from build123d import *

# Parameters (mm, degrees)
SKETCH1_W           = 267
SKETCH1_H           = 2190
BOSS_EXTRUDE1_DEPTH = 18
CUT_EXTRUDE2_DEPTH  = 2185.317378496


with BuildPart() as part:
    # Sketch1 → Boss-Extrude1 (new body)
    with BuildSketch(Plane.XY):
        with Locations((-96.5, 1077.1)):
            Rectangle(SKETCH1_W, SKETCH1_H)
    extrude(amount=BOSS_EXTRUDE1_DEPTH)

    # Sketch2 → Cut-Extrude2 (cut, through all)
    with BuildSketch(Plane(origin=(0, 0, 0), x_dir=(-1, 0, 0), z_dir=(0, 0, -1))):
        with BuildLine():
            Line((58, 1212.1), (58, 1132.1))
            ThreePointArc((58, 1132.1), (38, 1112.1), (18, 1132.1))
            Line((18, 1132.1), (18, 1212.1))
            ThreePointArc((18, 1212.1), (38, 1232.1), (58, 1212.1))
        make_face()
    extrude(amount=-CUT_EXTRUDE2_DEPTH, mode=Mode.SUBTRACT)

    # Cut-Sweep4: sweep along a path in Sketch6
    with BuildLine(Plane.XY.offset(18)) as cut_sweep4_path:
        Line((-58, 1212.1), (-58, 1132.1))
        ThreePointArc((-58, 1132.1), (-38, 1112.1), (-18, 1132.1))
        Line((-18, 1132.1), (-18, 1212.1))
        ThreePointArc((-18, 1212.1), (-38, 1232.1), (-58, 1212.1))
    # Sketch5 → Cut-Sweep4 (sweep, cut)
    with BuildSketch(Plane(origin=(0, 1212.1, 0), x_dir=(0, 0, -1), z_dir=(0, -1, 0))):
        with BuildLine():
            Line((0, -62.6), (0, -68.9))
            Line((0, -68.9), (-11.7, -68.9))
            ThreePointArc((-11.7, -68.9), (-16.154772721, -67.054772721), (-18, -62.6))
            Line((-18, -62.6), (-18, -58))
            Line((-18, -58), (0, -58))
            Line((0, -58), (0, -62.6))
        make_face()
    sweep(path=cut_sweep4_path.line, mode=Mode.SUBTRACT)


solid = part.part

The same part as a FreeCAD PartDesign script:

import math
import FreeCAD as App
import Part
import Sketcher
from FreeCAD import Vector
Q = App.Units.Quantity

doc = App.newDocument("Part")
body = doc.addObject("PartDesign::Body", "Body")

# Sketch on XY plane
sketch1 = body.newObject("Sketcher::SketchObject", "Sketch")
sketch1.AttachmentSupport = (doc.getObject("XY_Plane"), [""])
sketch1.MapMode = "FlatFace"
sketch1.addGeometry(Part.LineSegment(Vector(-230, 2172, 0), Vector(-230, -18, 0)), False)
sketch1.addGeometry(Part.LineSegment(Vector(-230, -18, 0), Vector(37, -18, 0)), False)
sketch1.addGeometry(Part.LineSegment(Vector(37, -18, 0), Vector(37, 2172, 0)), False)
sketch1.addGeometry(Part.LineSegment(Vector(37, 2172, 0), Vector(-230, 2172, 0)), False)
sketch1.addConstraint(Sketcher.Constraint("Coincident", 0, 2, 1, 1))
sketch1.addConstraint(Sketcher.Constraint("Coincident", 1, 2, 2, 1))
sketch1.addConstraint(Sketcher.Constraint("Coincident", 2, 2, 3, 1))
sketch1.addConstraint(Sketcher.Constraint("Coincident", 3, 2, 0, 1))
sketch1.addConstraint(Sketcher.Constraint("Vertical", 0))
sketch1.addConstraint(Sketcher.Constraint("Horizontal", 1))
sketch1.addConstraint(Sketcher.Constraint("Vertical", 2))
sketch1.addConstraint(Sketcher.Constraint("Horizontal", 3))
sketch1.addConstraint(Sketcher.Constraint("DistanceX", 1, 1, 1, 2, Q("267 mm")))
sketch1.addConstraint(Sketcher.Constraint("DistanceY", 0, 2, 0, 1, Q("2190 mm")))
sketch1.addConstraint(Sketcher.Constraint("DistanceX", 0, 2, -1, 1, Q("230 mm")))
sketch1.addConstraint(Sketcher.Constraint("DistanceY", 0, 2, -1, 1, Q("17.9 mm")))
pad1 = body.newObject("PartDesign::Pad", "Pad")
pad1.Profile = sketch1
pad1.Length = 18

# Sketch on XY plane
sketch2 = body.newObject("Sketcher::SketchObject", "Sketch001")
sketch2.AttachmentSupport = (doc.getObject("XY_Plane"), [""])
sketch2.MapMode = "FlatFace"
sketch2.addGeometry(Part.LineSegment(Vector(-58, 1132, 0), Vector(-58, 1212, 0)), False)
sketch2.addGeometry(Part.ArcOfCircle(Part.Circle(Vector(-38, 1212, 0), Vector(0, 0, 1), 20), math.radians(0), math.radians(180)), False)
sketch2.addGeometry(Part.LineSegment(Vector(-18, 1212, 0), Vector(-18, 1132, 0)), False)
sketch2.addGeometry(Part.ArcOfCircle(Part.Circle(Vector(-38, 1132, 0), Vector(0, 0, 1), 20), math.radians(180), math.radians(360)), False)
sketch2.addConstraint(Sketcher.Constraint("Tangent", 0, 2, 1, 2))
sketch2.addConstraint(Sketcher.Constraint("Tangent", 1, 1, 2, 1))
sketch2.addConstraint(Sketcher.Constraint("Tangent", 2, 2, 3, 2))
sketch2.addConstraint(Sketcher.Constraint("Tangent", 3, 1, 0, 1))
sketch2.addConstraint(Sketcher.Constraint("Vertical", 0))
sketch2.addConstraint(Sketcher.Constraint("Vertical", 2))
sketch2.addConstraint(Sketcher.Constraint("Radius", 1, Q("20 mm")))
sketch2.addConstraint(Sketcher.Constraint("DistanceY", 0, 1, 0, 2, Q("80 mm")))
sketch2.addConstraint(Sketcher.Constraint("DistanceX", 1, 3, -1, 1, Q("38 mm")))
sketch2.addConstraint(Sketcher.Constraint("DistanceY", -1, 1, 1, 3, Q("1212.1 mm")))
pocket1 = body.newObject("PartDesign::Pocket", "Pocket")
pocket1.Profile = sketch2
pocket1.Type = "ThroughAll"
pocket1.Reversed = True

# Sketch on XZ plane
sketch3 = body.newObject("Sketcher::SketchObject", "Sketch002")
sketch3.AttachmentSupport = (doc.getObject("XZ_Plane"), [""])
sketch3.MapMode = "FlatFace"
sketch3.AttachmentOffset = App.Placement(Vector(0, 0, -1212.1), App.Rotation())
sketch3.addGeometry(Part.LineSegment(Vector(-68.9, 11.7, 0), Vector(-68.9, 0, 0)), False)
sketch3.addGeometry(Part.LineSegment(Vector(-68.9, 0, 0), Vector(-58, 0, 0)), False)
sketch3.addGeometry(Part.LineSegment(Vector(-58, 0, 0), Vector(-58, 18, 0)), False)
sketch3.addGeometry(Part.LineSegment(Vector(-58, 18, 0), Vector(-62.6, 18, 0)), False)
sketch3.addGeometry(Part.ArcOfCircle(Part.Circle(Vector(-62.6, 11.7, 0), Vector(0, 0, 1), 6.3), math.radians(90), math.radians(180)), False)
sketch3.addConstraint(Sketcher.Constraint("Coincident", 0, 2, 1, 1))
sketch3.addConstraint(Sketcher.Constraint("Coincident", 1, 2, 2, 1))
sketch3.addConstraint(Sketcher.Constraint("Coincident", 2, 2, 3, 1))
sketch3.addConstraint(Sketcher.Constraint("Tangent", 3, 2, 4, 1))
sketch3.addConstraint(Sketcher.Constraint("Tangent", 4, 2, 0, 1))
sketch3.addConstraint(Sketcher.Constraint("Vertical", 0))
sketch3.addConstraint(Sketcher.Constraint("Horizontal", 1))
sketch3.addConstraint(Sketcher.Constraint("Vertical", 2))
sketch3.addConstraint(Sketcher.Constraint("Horizontal", 3))
sketch3.addConstraint(Sketcher.Constraint("PointOnObject", 0, 2, -1))
sketch3.addConstraint(Sketcher.Constraint("Radius", 4, Q("6.3 mm")))
sketch3.addConstraint(Sketcher.Constraint("DistanceY", 2, 1, 2, 2, Q("18 mm")))
sketch3.addConstraint(Sketcher.Constraint("DistanceX", 1, 1, 1, 2, Q("10.9 mm")))
sketch3.addConstraint(Sketcher.Constraint("DistanceX", 1, 2, -1, 1, Q("58 mm")))

# Sketch on XY plane
sketch4 = body.newObject("Sketcher::SketchObject", "Sketch003")
sketch4.AttachmentSupport = (doc.getObject("XY_Plane"), [""])
sketch4.MapMode = "FlatFace"
sketch4.AttachmentOffset = App.Placement(Vector(0, 0, 18), App.Rotation())
sketch4.addGeometry(Part.LineSegment(Vector(-58, 1212, 0), Vector(-58, 1132, 0)), False)
sketch4.addGeometry(Part.ArcOfCircle(Part.Circle(Vector(-38, 1132, 0), Vector(0, 0, 1), 20), math.radians(180), math.radians(360)), False)
sketch4.addGeometry(Part.LineSegment(Vector(-18, 1132, 0), Vector(-18, 1212, 0)), False)
sketch4.addGeometry(Part.ArcOfCircle(Part.Circle(Vector(-38, 1212, 0), Vector(0, 0, 1), 20), math.radians(0), math.radians(180)), False)
sketch4.addConstraint(Sketcher.Constraint("Tangent", 0, 2, 1, 1))
sketch4.addConstraint(Sketcher.Constraint("Tangent", 1, 2, 2, 1))
sketch4.addConstraint(Sketcher.Constraint("Tangent", 2, 2, 3, 1))
sketch4.addConstraint(Sketcher.Constraint("Tangent", 3, 2, 0, 1))
sketch4.addConstraint(Sketcher.Constraint("Vertical", 0))
sketch4.addConstraint(Sketcher.Constraint("Vertical", 2))
sketch4.addConstraint(Sketcher.Constraint("Radius", 1, Q("20 mm")))
sketch4.addConstraint(Sketcher.Constraint("DistanceY", 0, 2, 0, 1, Q("80 mm")))
sketch4.addConstraint(Sketcher.Constraint("DistanceX", 1, 3, -1, 1, Q("38 mm")))
sketch4.addConstraint(Sketcher.Constraint("DistanceY", -1, 1, 1, 3, Q("1132.1 mm")))
doc.recompute()

subtractivepipe = body.newObject("PartDesign::SubtractivePipe", "SubtractivePipe")
subtractivepipe.Profile = sketch3
subtractivepipe.Spine = (sketch4, ["Edge1", "Edge2", "Edge3", "Edge4"])

doc.recompute()
